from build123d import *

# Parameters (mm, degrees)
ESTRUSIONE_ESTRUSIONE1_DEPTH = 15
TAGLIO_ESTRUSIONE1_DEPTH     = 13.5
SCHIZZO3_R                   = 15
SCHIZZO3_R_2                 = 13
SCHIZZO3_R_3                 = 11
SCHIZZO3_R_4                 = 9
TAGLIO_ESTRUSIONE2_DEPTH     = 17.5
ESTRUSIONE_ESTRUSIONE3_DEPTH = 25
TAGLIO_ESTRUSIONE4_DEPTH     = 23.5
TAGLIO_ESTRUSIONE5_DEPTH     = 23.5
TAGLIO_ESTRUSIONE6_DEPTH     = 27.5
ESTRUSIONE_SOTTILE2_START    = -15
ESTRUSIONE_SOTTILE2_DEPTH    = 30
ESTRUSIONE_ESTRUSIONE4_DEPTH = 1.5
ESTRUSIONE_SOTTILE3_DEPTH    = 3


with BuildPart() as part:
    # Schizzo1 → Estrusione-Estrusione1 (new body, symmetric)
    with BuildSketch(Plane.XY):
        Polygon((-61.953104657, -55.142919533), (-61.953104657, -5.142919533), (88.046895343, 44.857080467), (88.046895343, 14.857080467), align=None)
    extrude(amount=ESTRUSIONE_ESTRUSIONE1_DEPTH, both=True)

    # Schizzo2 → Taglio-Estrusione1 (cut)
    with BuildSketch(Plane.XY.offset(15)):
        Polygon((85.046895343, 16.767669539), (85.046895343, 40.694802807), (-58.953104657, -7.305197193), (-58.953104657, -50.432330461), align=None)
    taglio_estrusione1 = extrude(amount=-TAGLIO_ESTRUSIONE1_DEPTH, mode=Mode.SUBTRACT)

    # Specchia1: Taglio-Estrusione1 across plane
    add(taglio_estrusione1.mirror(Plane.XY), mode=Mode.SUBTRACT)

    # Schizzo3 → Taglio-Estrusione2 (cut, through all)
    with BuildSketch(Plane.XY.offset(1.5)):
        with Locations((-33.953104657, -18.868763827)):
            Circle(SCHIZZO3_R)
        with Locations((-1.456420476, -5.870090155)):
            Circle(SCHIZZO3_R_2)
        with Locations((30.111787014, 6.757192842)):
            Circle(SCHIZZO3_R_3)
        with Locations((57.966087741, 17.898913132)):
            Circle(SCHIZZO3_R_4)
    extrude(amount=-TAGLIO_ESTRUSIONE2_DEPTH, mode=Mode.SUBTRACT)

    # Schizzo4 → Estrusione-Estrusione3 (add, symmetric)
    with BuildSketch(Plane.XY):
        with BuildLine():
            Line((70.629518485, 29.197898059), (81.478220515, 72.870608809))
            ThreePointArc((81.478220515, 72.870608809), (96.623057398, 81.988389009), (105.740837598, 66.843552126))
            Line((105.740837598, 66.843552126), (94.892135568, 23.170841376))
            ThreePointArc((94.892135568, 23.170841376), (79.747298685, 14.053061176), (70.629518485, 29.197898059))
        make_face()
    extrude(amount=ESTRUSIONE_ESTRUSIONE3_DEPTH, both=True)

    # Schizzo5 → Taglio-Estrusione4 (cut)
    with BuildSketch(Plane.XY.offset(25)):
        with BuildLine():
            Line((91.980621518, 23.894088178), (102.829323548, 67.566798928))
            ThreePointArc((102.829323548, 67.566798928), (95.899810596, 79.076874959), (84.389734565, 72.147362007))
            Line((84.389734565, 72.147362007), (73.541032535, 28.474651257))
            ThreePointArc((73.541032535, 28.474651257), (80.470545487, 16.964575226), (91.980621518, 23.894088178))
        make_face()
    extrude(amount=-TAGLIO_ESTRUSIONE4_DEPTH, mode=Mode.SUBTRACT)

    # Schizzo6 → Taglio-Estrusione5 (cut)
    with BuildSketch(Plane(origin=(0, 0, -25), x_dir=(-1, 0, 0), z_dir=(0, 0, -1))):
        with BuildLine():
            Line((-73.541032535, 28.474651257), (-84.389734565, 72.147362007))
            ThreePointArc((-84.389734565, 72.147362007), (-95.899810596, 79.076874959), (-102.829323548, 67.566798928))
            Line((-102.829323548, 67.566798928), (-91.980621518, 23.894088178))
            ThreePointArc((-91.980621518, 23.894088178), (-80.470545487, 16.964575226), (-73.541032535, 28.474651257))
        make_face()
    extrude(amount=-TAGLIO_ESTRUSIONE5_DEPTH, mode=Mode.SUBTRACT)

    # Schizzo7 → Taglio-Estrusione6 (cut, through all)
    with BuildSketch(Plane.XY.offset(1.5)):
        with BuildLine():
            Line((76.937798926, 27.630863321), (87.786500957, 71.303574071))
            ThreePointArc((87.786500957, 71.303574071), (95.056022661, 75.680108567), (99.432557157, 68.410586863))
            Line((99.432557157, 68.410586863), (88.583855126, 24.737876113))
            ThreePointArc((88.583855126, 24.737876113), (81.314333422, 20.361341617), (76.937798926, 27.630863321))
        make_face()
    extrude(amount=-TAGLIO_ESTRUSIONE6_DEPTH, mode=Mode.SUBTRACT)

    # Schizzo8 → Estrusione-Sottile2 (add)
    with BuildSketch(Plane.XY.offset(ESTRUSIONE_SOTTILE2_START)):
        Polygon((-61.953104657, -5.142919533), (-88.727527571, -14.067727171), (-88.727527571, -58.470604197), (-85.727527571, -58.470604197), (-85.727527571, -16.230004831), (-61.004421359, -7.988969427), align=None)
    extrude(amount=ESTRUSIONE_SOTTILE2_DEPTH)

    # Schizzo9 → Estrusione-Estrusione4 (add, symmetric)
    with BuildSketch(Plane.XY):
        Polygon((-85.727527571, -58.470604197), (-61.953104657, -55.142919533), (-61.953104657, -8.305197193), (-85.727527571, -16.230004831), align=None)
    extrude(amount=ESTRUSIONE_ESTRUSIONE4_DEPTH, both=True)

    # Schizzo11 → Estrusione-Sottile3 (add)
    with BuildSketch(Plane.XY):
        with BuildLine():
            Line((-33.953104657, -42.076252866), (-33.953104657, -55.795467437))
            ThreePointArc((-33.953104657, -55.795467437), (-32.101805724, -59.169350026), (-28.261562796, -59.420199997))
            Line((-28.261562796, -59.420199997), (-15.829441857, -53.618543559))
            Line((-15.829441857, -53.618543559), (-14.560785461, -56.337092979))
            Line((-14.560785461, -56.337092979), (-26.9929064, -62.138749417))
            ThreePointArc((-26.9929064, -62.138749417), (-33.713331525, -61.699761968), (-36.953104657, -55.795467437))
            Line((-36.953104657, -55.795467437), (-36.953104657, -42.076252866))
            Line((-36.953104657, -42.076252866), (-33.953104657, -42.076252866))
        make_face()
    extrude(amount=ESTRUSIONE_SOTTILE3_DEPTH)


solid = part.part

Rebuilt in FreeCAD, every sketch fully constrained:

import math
import FreeCAD as App
import Part
import Sketcher
Q = App.Units.Quantity


def add_polygon(sketch, points):
    """Adds a closed chain of lines whose ends are joined by coincident constraints."""
    first, n = sketch.GeometryCount, len(points)
    for a, b in zip(points, points[1:] + points[:1]):
        sketch.addGeometry(Part.LineSegment(App.Vector(*a, 0), App.Vector(*b, 0)), False)
    for i in range(n):
        sketch.addConstraint(Sketcher.Constraint("Coincident", first + i, 2, first + (i + 1) % n, 1))

doc = App.newDocument("Part")
body = doc.addObject("PartDesign::Body", "Body")

sketch1 = body.newObject("Sketcher::SketchObject", "Sketch")
sketch1.AttachmentSupport = (doc.getObject("XY_Plane"), [""])
sketch1.MapMode = "FlatFace"
add_polygon(sketch1, [(-61.953105, -5.14292), (-61.953105, -55.14292), (88.046895, 14.85708), (88.046895, 44.85708)])
sketch1.addConstraint(Sketcher.Constraint("Vertical", 0))
sketch1.addConstraint(Sketcher.Constraint("Vertical", 2))
sketch1.addConstraint(Sketcher.Constraint("DistanceY", 0, 2, 0, 1, Q("50 mm")))
sketch1.addConstraint(Sketcher.Constraint("DistanceY", 2, 1, 2, 2, Q("30 mm")))
sketch1.addConstraint(Sketcher.Constraint("DistanceX", 0, 2, 1, 2, Q("150 mm")))
sketch1.addConstraint(Sketcher.Constraint("DistanceY", 0, 2, 1, 2, Q("70 mm")))
sketch1.addConstraint(Sketcher.Constraint("DistanceY", 0, 2, -1, 1, Q("55.14292 mm")))
sketch1.addConstraint(Sketcher.Constraint("DistanceX", 0, 2, -1, 1, Q("61.953105 mm")))
pad1 = body.newObject("PartDesign::Pad", "Pad")
pad1.Profile = sketch1
pad1.Length = 30
pad1.Midplane = True

sketch2 = body.newObject("Sketcher::SketchObject", "Sketch001")
sketch2.AttachmentSupport = (doc.getObject("XY_Plane"), [""])
sketch2.MapMode = "FlatFace"
sketch2.AttachmentOffset = App.Placement(App.Vector(0, 0, 15), App.Rotation())
add_polygon(sketch2, [(85.046895, 16.76767), (85.046895, 40.694803), (-58.953105, -7.305197), (-58.953105, -50.43233)])
sketch2.addConstraint(Sketcher.Constraint("Vertical", 0))
sketch2.addConstraint(Sketcher.Constraint("Vertical", 2))
sketch2.addConstraint(Sketcher.Constraint("DistanceX", 1, 2, 0, 2, Q("144 mm")))
sketch2.addConstraint(Sketcher.Constraint("DistanceY", 1, 2, 0, 2, Q("48 mm")))
sketch2.addConstraint(Sketcher.Constraint("DistanceY", 2, 2, 3, 2, Q("67.2 mm")))
sketch2.addConstraint(Sketcher.Constraint("DistanceY", 0, 1, 0, 2, Q("23.927133 mm")))
sketch2.addConstraint(Sketcher.Constraint("DistanceY", 2, 2, -1, 1, Q("50.43233 mm")))
sketch2.addConstraint(Sketcher.Constraint("DistanceX", -1, 1, 0, 2, Q("85.046895 mm")))
pocket1 = body.newObject("PartDesign::Pocket", "Pocket")
pocket1.Profile = sketch2
pocket1.Length = 13.5
doc.recompute()

mirrored = body.newObject("PartDesign::Mirrored", "Mirrored")
mirrored.Originals = [pocket1]
mirrored.MirrorPlane = (doc.getObject("XY_Plane"), [""])
body.Tip = mirrored

sketch3 = body.newObject("Sketcher::SketchObject", "Sketch002")
sketch3.AttachmentSupport = (doc.getObject("XY_Plane"), [""])
sketch3.MapMode = "FlatFace"
sketch3.AttachmentOffset = App.Placement(App.Vector(0, 0, 1.5), App.Rotation())
sketch3.addGeometry(Part.Circle(App.Vector(-33.953105, -18.868764, 0), App.Vector(0, 0, 1), 15), False)
sketch3.addGeometry(Part.Circle(App.Vector(-1.45642, -5.87009, 0), App.Vector(0, 0, 1), 13), False)
sketch3.addGeometry(Part.Circle(App.Vector(30.111787, 6.757193, 0), App.Vector(0, 0, 1), 11), False)
sketch3.addGeometry(Part.Circle(App.Vector(57.966088, 17.898913, 0), App.Vector(0, 0, 1), 9), False)
sketch3.addConstraint(Sketcher.Constraint("Diameter", 0, Q("30 mm")))
sketch3.addConstraint(Sketcher.Constraint("Diameter", 1, Q("26 mm")))
sketch3.addConstraint(Sketcher.Constraint("Diameter", 2, Q("22 mm")))
sketch3.addConstraint(Sketcher.Constraint("Diameter", 3, Q("18 mm")))
sketch3.addConstraint(Sketcher.Constraint("DistanceX", 2, 3, 3, 3, Q("27.854301 mm")))
sketch3.addConstraint(Sketcher.Constraint("DistanceX", 1, 3, -1, 1, Q("1.45642 mm")))
sketch3.addConstraint(Sketcher.Constraint("DistanceY", 1, 3, -1, 1, Q("5.87009 mm")))
sketch3.addConstraint(Sketcher.Constraint("DistanceX", 0, 3, 2, 3, Q("64.064892 mm")))
sketch3.addConstraint(Sketcher.Constraint("DistanceY", 2, 3, 3, 3, Q("11.14172 mm")))
sketch3.addConstraint(Sketcher.Constraint("DistanceX", 1, 3, 3, 3, Q("59.422508 mm")))
sketch3.addConstraint(Sketcher.Constraint("DistanceY", 0, 3, -1, 1, Q("18.868764 mm")))
sketch3.addConstraint(Sketcher.Constraint("DistanceY", -1, 1, 2, 3, Q("6.757193 mm")))
pocket2 = body.newObject("PartDesign::Pocket", "Pocket001")
pocket2.Profile = sketch3
pocket2.Type = "ThroughAll"

sketch4 = body.newObject("Sketcher::SketchObject", "Sketch003")
sketch4.AttachmentSupport = (doc.getObject("XY_Plane"), [""])
sketch4.MapMode = "FlatFace"
sketch4.addGeometry(Part.LineSegment(App.Vector(81.478221, 72.870609, 0), App.Vector(70.629518, 29.197898, 0)), False)
sketch4.addGeometry(Part.ArcOfCircle(Part.Circle(App.Vector(82.760827, 26.18437, 0), App.Vector(0, 0, 1), 12.5), math.radians(166.049575), math.radians(346.049575)), False)
sketch4.addGeometry(Part.LineSegment(App.Vector(94.892136, 23.170841, 0), App.Vector(105.740838, 66.843552, 0)), False)
sketch4.addGeometry(Part.ArcOfCircle(Part.Circle(App.Vector(93.609529, 69.85708, 0), App.Vector(0, 0, 1), 12.5), math.radians(-13.950425), math.radians(166.049575)), False)
sketch4.addConstraint(Sketcher.Constraint("Tangent", 0, 2, 1, 1))
sketch4.addConstraint(Sketcher.Constraint("Tangent", 1, 2, 2, 1))
sketch4.addConstraint(Sketcher.Constraint("Tangent", 2, 2, 3, 1))
sketch4.addConstraint(Sketcher.Constraint("Tangent", 3, 2, 0, 1))
sketch4.addConstraint(Sketcher.Constraint("Equal", 1, 3))
sketch4.addConstraint(Sketcher.Constraint("Radius", 1, Q("12.5 mm")))
sketch4.addConstraint(Sketcher.Constraint("Distance", 0, Q("45 mm")))
sketch4.addConstraint(Sketcher.Constraint("DistanceY", -1, 1, 0, 2, Q("29.197898 mm")))
sketch4.addConstraint(Sketcher.Constraint("DistanceY", -1, 1, 1, 3, Q("26.18437 mm")))
sketch4.addConstraint(Sketcher.Constraint("DistanceX", -1, 1, 3, 3, Q("93.609529 mm")))
pad2 = body.newObject("PartDesign::Pad", "Pad001")
pad2.Profile = sketch4
pad2.Length = 50
pad2.Midplane = True

sketch5 = body.newObject("Sketcher::SketchObject", "Sketch004")
sketch5.AttachmentSupport = (doc.getObject("XY_Plane"), [""])
sketch5.MapMode = "FlatFace"
sketch5.AttachmentOffset = App.Placement(App.Vector(0, 0, 25), App.Rotation())
sketch5.addGeometry(Part.LineSegment(App.Vector(91.980622, 23.894088, 0), App.Vector(102.829324, 67.566799, 0)), False)
sketch5.addGeometry(Part.ArcOfCircle(Part.Circle(App.Vector(93.609529, 69.85708, 0), App.Vector(0, 0, 1), 9.5), math.radians(-13.950425), math.radians(166.049575)), False)
sketch5.addGeometry(Part.LineSegment(App.Vector(84.389735, 72.147362, 0), App.Vector(73.541033, 28.474651, 0)), False)
sketch5.addGeometry(Part.ArcOfCircle(Part.Circle(App.Vector(82.760827, 26.18437, 0), App.Vector(0, 0, 1), 9.5), math.radians(166.049575), math.radians(346.049575)), False)
sketch5.addConstraint(Sketcher.Constraint("Tangent", 0, 2, 1, 1))
sketch5.addConstraint(Sketcher.Constraint("Tangent", 1, 2, 2, 1))
sketch5.addConstraint(Sketcher.Constraint("Tangent", 2, 2, 3, 1))
sketch5.addConstraint(Sketcher.Constraint("Tangent", 3, 2, 0, 1))
sketch5.addConstraint(Sketcher.Constraint("Equal", 1, 3))
sketch5.addConstraint(Sketcher.Constraint("Radius", 1, Q("9.5 mm")))
sketch5.addConstraint(Sketcher.Constraint("Distance", 0, Q("45 mm")))
sketch5.addConstraint(Sketcher.Constraint("DistanceY", -1, 1, 0, 2, Q("67.566799 mm")))
sketch5.addConstraint(Sketcher.Constraint("DistanceX", -1, 1, 1, 3, Q("93.609529 mm")))
sketch5.addConstraint(Sketcher.Constraint("DistanceY", -1, 1, 1, 3, Q("69.85708 mm")))
pocket3 = body.newObject("PartDesign::Pocket", "Pocket002")
pocket3.Profile = sketch5
pocket3.Length = 23.5

sketch6 = body.newObject("Sketcher::SketchObject", "Sketch005")
sketch6.AttachmentSupport = (doc.getObject("XY_Plane"), [""])
sketch6.MapMode = "FlatFace"
sketch6.AttachmentOffset = App.Placement(App.Vector(0, 0, -25), App.Rotation())
sketch6.addGeometry(Part.LineSegment(App.Vector(73.541033, 28.474651, 0), App.Vector(84.389735, 72.147362, 0)), False)
sketch6.addGeometry(Part.ArcOfCircle(Part.Circle(App.Vector(93.609529, 69.85708, 0), App.Vector(0, 0, 1), 9.5), math.radians(-13.950425), math.radians(166.049575)), False)
sketch6.addGeometry(Part.LineSegment(App.Vector(102.829324, 67.566799, 0), App.Vector(91.980622, 23.894088, 0)), False)
sketch6.addGeometry(Part.ArcOfCircle(Part.Circle(App.Vector(82.760827, 26.18437, 0), App.Vector(0, 0, 1), 9.5), math.radians(166.049575), math.radians(346.049575)), False)
sketch6.addConstraint(Sketcher.Constraint("Tangent", 0, 2, 1, 2))
sketch6.addConstraint(Sketcher.Constraint("Tangent", 1, 1, 2, 1))
sketch6.addConstraint(Sketcher.Constraint("Tangent", 2, 2, 3, 2))
sketch6.addConstraint(Sketcher.Constraint("Tangent", 3, 1, 0, 1))
sketch6.addConstraint(Sketcher.Constraint("Equal", 1, 3))
sketch6.addConstraint(Sketcher.Constraint("Radius", 1, Q("9.5 mm")))
sketch6.addConstraint(Sketcher.Constraint("Distance", 0, Q("45 mm")))
sketch6.addConstraint(Sketcher.Constraint("DistanceY", -1, 1, 1, 1, Q("67.566799 mm")))
sketch6.addConstraint(Sketcher.Constraint("DistanceX", -1, 1, 1, 3, Q("93.609529 mm")))
sketch6.addConstraint(Sketcher.Constraint("DistanceY", -1, 1, 1, 3, Q("69.85708 mm")))
pocket4 = body.newObject("PartDesign::Pocket", "Pocket003")
pocket4.Profile = sketch6
pocket4.Length = 23.5
pocket4.Reversed = True

sketch7 = body.newObject("Sketcher::SketchObject", "Sketch006")
sketch7.AttachmentSupport = (doc.getObject("XY_Plane"), [""])
sketch7.MapMode = "FlatFace"
sketch7.AttachmentOffset = App.Placement(App.Vector(0, 0, 1.5), App.Rotation())
sketch7.addGeometry(Part.LineSegment(App.Vector(87.786501, 71.303574, 0), App.Vector(76.937799, 27.630863, 0)), False)
sketch7.addGeometry(Part.ArcOfCircle(Part.Circle(App.Vector(82.760827, 26.18437, 0), App.Vector(0, 0, 1), 6), math.radians(166.049575), math.radians(346.049575)), False)
sketch7.addGeometry(Part.LineSegment(App.Vector(88.583855, 24.737876, 0), App.Vector(99.432557, 68.410587, 0)), False)
sketch7.addGeometry(Part.ArcOfCircle(Part.Circle(App.Vector(93.609529, 69.85708, 0), App.Vector(0, 0, 1), 6), math.radians(-13.950425), math.radians(166.049575)), False)
sketch7.addConstraint(Sketcher.Constraint("Tangent", 0, 2, 1, 1))
sketch7.addConstraint(Sketcher.Constraint("Tangent", 1, 2, 2, 1))
sketch7.addConstraint(Sketcher.Constraint("Tangent", 2, 2, 3, 1))
sketch7.addConstraint(Sketcher.Constraint("Tangent", 3, 2, 0, 1))
sketch7.addConstraint(Sketcher.Constraint("Equal", 1, 3))
sketch7.addConstraint(Sketcher.Constraint("Radius", 1, Q("6 mm")))
sketch7.addConstraint(Sketcher.Constraint("Distance", 0, Q("45 mm")))
sketch7.addConstraint(Sketcher.Constraint("DistanceX", -1, 1, 0, 2, Q("76.937799 mm")))
sketch7.addConstraint(Sketcher.Constraint("DistanceX", -1, 1, 3, 2, Q("87.786501 mm")))
sketch7.addConstraint(Sketcher.Constraint("DistanceY", -1, 1, 1, 3, Q("26.18437 mm")))
pocket5 = body.newObject("PartDesign::Pocket", "Pocket004")
pocket5.Profile = sketch7
pocket5.Type = "ThroughAll"

sketch8 = body.newObject("Sketcher::SketchObject", "Sketch007")
sketch8.AttachmentSupport = (doc.getObject("XY_Plane"), [""])
sketch8.MapMode = "FlatFace"
sketch8.AttachmentOffset = App.Placement(App.Vector(0, 0, -15), App.Rotation())
add_polygon(sketch8, [(-61.953105, -5.14292), (-88.727528, -14.067727), (-88.727528, -58.470604), (-85.727528, -58.470604), (-85.727528, -16.230005), (-61.004421, -7.988969)])
sketch8.addConstraint(Sketcher.Constraint("Vertical", 1))
sketch8.addConstraint(Sketcher.Constraint("Horizontal", 2))
sketch8.addConstraint(Sketcher.Constraint("Vertical", 3))
sketch8.addConstraint(Sketcher.Constraint("Parallel", 0, 4))
sketch8.addConstraint(Sketcher.Constraint("Perpendicular", 4, 5))
sketch8.addConstraint(Sketcher.Constraint("DistanceX", 2, 1, 2, 2, Q("3 mm")))
sketch8.addConstraint(Sketcher.Constraint("Distance", 5, Q("3 mm")))
sketch8.addConstraint(Sketcher.Constraint("DistanceY", 3, 1, 3, 2, Q("42.240599 mm")))
sketch8.addConstraint(Sketcher.Constraint("Distance", 0, Q("28.22272 mm")))
sketch8.addConstraint(Sketcher.Constraint("DistanceY", 1, 2, 1, 1, Q("44.402877 mm")))
sketch8.addConstraint(Sketcher.Constraint("DistanceX", 4, 2, -1, 1, Q("61.004421 mm")))
sketch8.addConstraint(Sketcher.Constraint("DistanceY", 4, 2, -1, 1, Q("7.988969 mm")))
pad3 = body.newObject("PartDesign::Pad", "Pad002")
pad3.Profile = sketch8
pad3.Length = 30

sketch9 = body.newObject("Sketcher::SketchObject", "Sketch008")
sketch9.AttachmentSupport = (doc.getObject("XY_Plane"), [""])
sketch9.MapMode = "FlatFace"
add_polygon(sketch9, [(-85.727528, -58.470604), (-61.953105, -55.14292), (-61.953105, -8.305197), (-85.727528, -16.230005)])
sketch9.addConstraint(Sketcher.Constraint("Vertical", 1))
sketch9.addConstraint(Sketcher.Constraint("Vertical", 3))
sketch9.addConstraint(Sketcher.Constraint("DistanceY", 3, 2, 3, 1, Q("42.240599 mm")))
sketch9.addConstraint(Sketcher.Constraint("Distance", 0, Q("24.00618 mm")))
sketch9.addConstraint(Sketcher.Constraint("DistanceY", 1, 1, 1, 2, Q("46.837722 mm")))
sketch9.addConstraint(Sketcher.Constraint("DistanceY", 0, 2, -1, 1, Q("55.14292 mm")))
sketch9.addConstraint(Sketcher.Constraint("Distance", 2, Q("25.060442 mm")))
sketch9.addConstraint(Sketcher.Constraint("DistanceX", 0, 2, -1, 1, Q("61.953105 mm")))
pad4 = body.newObject("PartDesign::Pad", "Pad003")
pad4.Profile = sketch9
pad4.Length = 3
pad4.Midplane = True

sketch10 = body.newObject("Sketcher::SketchObject", "Sketch009")
sketch10.AttachmentSupport = (doc.getObject("XY_Plane"), [""])
sketch10.MapMode = "FlatFace"
sketch10.addGeometry(Part.LineSegment(App.Vector(-33.953105, -55.795467, 0), App.Vector(-33.953105, -42.076253, 0)), False)
sketch10.addGeometry(Part.LineSegment(App.Vector(-33.953105, -42.076253, 0), App.Vector(-36.953105, -42.076253, 0)), False)
sketch10.addGeometry(Part.LineSegment(App.Vector(-36.953105, -42.076253, 0), App.Vector(-36.953105, -55.795467, 0)), False)
sketch10.addGeometry(Part.ArcOfCircle(Part.Circle(App.Vector(-29.953105, -55.795467, 0), App.Vector(0, 0, 1), 7), math.radians(180), math.radians(295.016893)), False)
sketch10.addGeometry(Part.LineSegment(App.Vector(-26.992906, -62.138749, 0), App.Vector(-14.560785, -56.337093, 0)), False)
sketch10.addGeometry(Part.LineSegment(App.Vector(-14.560785, -56.337093, 0), App.Vector(-15.829442, -53.618544, 0)), False)
sketch10.addGeometry(Part.LineSegment(App.Vector(-15.829442, -53.618544, 0), App.Vector(-28.261563, -59.4202, 0)), False)
sketch10.addGeometry(Part.ArcOfCircle(Part.Circle(App.Vector(-29.953105, -55.795467, 0), App.Vector(0, 0, 1), 4), math.radians(180), math.radians(295.016893)), False)
sketch10.addConstraint(Sketcher.Constraint("Coincident", 0, 2, 1, 1))
sketch10.addConstraint(Sketcher.Constraint("Coincident", 1, 2, 2, 1))
sketch10.addConstraint(Sketcher.Constraint("Tangent", 2, 2, 3, 1))
sketch10.addConstraint(Sketcher.Constraint("Tangent", 3, 2, 4, 1))
sketch10.addConstraint(Sketcher.Constraint("Coincident", 4, 2, 5, 1))
sketch10.addConstraint(Sketcher.Constraint("Coincident", 5, 2, 6, 1))
sketch10.addConstraint(Sketcher.Constraint("Tangent", 6, 2, 7, 2))
sketch10.addConstraint(Sketcher.Constraint("Tangent", 7, 1, 0, 1))
sketch10.addConstraint(Sketcher.Constraint("Vertical", 0))
sketch10.addConstraint(Sketcher.Constraint("Horizontal", 1))
sketch10.addConstraint(Sketcher.Constraint("Vertical", 2))
sketch10.addConstraint(Sketcher.Constraint("Coincident", 7, 3, 3, 3))
sketch10.addConstraint(Sketcher.Constraint("Perpendicular", 4, 5))
sketch10.addConstraint(Sketcher.Constraint("Perpendicular", 5, 6))
sketch10.addConstraint(Sketcher.Constraint("Radius", 3, Q("7 mm")))
sketch10.addConstraint(Sketcher.Constraint("Radius", 7, Q("4 mm")))
sketch10.addConstraint(Sketcher.Constraint("DistanceY", 6, 2, -1, 1, Q("59.4202 mm")))
sketch10.addConstraint(Sketcher.Constraint("DistanceX", 3, 3, 3, 2, Q("2.960198 mm")))
sketch10.addConstraint(Sketcher.Constraint("DistanceY", 0, 1, 0, 2, Q("13.719215 mm")))
sketch10.addConstraint(Sketcher.Constraint("DistanceX", 5, 2, -1, 1, Q("15.829442 mm")))
sketch10.addConstraint(Sketcher.Constraint("DistanceX", 3, 2, 4, 2, Q("12.432121 mm")))
pad5 = body.newObject("PartDesign::Pad", "Pad004")
pad5.Profile = sketch10
pad5.Length = 3

doc.recompute()
